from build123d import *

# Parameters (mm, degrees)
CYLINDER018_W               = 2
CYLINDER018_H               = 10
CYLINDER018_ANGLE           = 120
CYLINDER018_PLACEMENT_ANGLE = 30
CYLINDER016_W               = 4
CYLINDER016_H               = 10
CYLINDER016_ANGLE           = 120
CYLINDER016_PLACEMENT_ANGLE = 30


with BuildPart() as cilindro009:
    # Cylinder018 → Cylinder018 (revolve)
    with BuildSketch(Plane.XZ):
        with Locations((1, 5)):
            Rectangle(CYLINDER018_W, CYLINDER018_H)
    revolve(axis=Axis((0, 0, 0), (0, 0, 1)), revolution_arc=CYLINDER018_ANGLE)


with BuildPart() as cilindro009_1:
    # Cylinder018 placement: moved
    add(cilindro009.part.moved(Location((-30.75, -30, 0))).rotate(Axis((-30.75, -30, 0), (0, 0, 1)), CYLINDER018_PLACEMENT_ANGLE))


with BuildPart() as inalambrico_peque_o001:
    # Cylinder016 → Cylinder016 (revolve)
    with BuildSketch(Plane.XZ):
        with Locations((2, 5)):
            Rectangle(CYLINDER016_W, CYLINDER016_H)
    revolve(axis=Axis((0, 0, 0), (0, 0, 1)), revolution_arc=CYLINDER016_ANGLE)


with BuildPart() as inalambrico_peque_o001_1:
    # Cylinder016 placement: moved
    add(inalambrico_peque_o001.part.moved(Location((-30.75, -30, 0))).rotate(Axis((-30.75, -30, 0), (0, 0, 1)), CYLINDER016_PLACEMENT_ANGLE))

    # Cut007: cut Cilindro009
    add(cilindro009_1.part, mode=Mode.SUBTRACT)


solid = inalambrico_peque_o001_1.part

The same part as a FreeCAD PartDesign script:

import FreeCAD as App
import Part
import Sketcher

doc = App.newDocument("Part")
body = doc.addObject("PartDesign::Body", "Body")

sketch1 = body.newObject("Sketcher::SketchObject", "Sketch")
sketch1.AttachmentSupport = (doc.getObject("XZ_Plane"), [""])
sketch1.MapMode = "FlatFace"
sketch1.addGeometry([
    Part.LineSegment(App.Vector(0, 10, 0), App.Vector(0, 0, 0)),
    Part.LineSegment(App.Vector(0, 0, 0), App.Vector(2, 0, 0)),
    Part.LineSegment(App.Vector(2, 0, 0), App.Vector(2, 10, 0)),
    Part.LineSegment(App.Vector(2, 10, 0), App.Vector(0, 10, 0)),
], False)
sketch1.addConstraint([
    Sketcher.Constraint("Coincident", 0, 2, 1, 1),
    Sketcher.Constraint("Coincident", 1, 2, 2, 1),
    Sketcher.Constraint("Coincident", 2, 2, 3, 1),
    Sketcher.Constraint("Coincident", 3, 2, 0, 1),
    Sketcher.Constraint("Vertical", 0),
    Sketcher.Constraint("Horizontal", 1),
    Sketcher.Constraint("Vertical", 2),
    Sketcher.Constraint("Horizontal", 3),
    Sketcher.Constraint("Coincident", 0, 2, -1, 1),
    Sketcher.Constraint("DistanceX", 1, 1, 1, 2, 2.0),
    Sketcher.Constraint("DistanceY", 0, 2, 0, 1, 10.0),
])
revolution = body.newObject("PartDesign::Revolution", "Revolution")
revolution.Profile = sketch1
revolution.ReferenceAxis = (sketch1, ["V_Axis"])
revolution.Angle = 120
body2 = doc.addObject("PartDesign::Body", "Body001")
doc.recompute()

body.Placement = App.Placement(App.Vector(-30.75, -30, 0), App.Rotation(App.Vector(0, 0, 1), 30))
boolean = body2.newObject("PartDesign::Boolean", "Boolean")
boolean.Type = "Fuse"
boolean.addObjects([body])
body3 = doc.addObject("PartDesign::Body", "Body002")

sketch2 = body3.newObject("Sketcher::SketchObject", "Sketch001")
sketch2.AttachmentSupport = (doc.getObject("XZ_Plane002"), [""])
sketch2.MapMode = "FlatFace"
sketch2.addGeometry([
    Part.LineSegment(App.Vector(0, 10, 0), App.Vector(0, 0, 0)),
    Part.LineSegment(App.Vector(0, 0, 0), App.Vector(4, 0, 0)),
    Part.LineSegment(App.Vector(4, 0, 0), App.Vector(4, 10, 0)),
    Part.LineSegment(App.Vector(4, 10, 0), App.Vector(0, 10, 0)),
], False)
sketch2.addConstraint([
    Sketcher.Constraint("Coincident", 0, 2, 1, 1),
    Sketcher.Constraint("Coincident", 1, 2, 2, 1),
    Sketcher.Constraint("Coincident", 2, 2, 3, 1),
    Sketcher.Constraint("Coincident", 3, 2, 0, 1),
    Sketcher.Constraint("Vertical", 0),
    Sketcher.Constraint("Horizontal", 1),
    Sketcher.Constraint("Vertical", 2),
    Sketcher.Constraint("Horizontal", 3),
    Sketcher.Constraint("Coincident", 0, 2, -1, 1),
    Sketcher.Constraint("DistanceX", 1, 1, 1, 2, 4.0),
    Sketcher.Constraint("DistanceY", 0, 2, 0, 1, 10.0),
])
revolution2 = body3.newObject("PartDesign::Revolution", "Revolution001")
revolution2.Profile = sketch2
revolution2.ReferenceAxis = (sketch2, ["V_Axis"])
revolution2.Angle = 120
body4 = doc.addObject("PartDesign::Body", "Body003")
doc.recompute()

body3.Placement = App.Placement(App.Vector(-30.75, -30, 0), App.Rotation(App.Vector(0, 0, 1), 30))
boolean2 = body4.newObject("PartDesign::Boolean", "Boolean001")
boolean2.Type = "Fuse"
boolean2.addObjects([body3])
doc.recompute()

boolean3 = body4.newObject("PartDesign::Boolean", "Boolean002")
boolean3.Type = "Cut"
boolean3.addObjects([body2])

doc.recompute()
